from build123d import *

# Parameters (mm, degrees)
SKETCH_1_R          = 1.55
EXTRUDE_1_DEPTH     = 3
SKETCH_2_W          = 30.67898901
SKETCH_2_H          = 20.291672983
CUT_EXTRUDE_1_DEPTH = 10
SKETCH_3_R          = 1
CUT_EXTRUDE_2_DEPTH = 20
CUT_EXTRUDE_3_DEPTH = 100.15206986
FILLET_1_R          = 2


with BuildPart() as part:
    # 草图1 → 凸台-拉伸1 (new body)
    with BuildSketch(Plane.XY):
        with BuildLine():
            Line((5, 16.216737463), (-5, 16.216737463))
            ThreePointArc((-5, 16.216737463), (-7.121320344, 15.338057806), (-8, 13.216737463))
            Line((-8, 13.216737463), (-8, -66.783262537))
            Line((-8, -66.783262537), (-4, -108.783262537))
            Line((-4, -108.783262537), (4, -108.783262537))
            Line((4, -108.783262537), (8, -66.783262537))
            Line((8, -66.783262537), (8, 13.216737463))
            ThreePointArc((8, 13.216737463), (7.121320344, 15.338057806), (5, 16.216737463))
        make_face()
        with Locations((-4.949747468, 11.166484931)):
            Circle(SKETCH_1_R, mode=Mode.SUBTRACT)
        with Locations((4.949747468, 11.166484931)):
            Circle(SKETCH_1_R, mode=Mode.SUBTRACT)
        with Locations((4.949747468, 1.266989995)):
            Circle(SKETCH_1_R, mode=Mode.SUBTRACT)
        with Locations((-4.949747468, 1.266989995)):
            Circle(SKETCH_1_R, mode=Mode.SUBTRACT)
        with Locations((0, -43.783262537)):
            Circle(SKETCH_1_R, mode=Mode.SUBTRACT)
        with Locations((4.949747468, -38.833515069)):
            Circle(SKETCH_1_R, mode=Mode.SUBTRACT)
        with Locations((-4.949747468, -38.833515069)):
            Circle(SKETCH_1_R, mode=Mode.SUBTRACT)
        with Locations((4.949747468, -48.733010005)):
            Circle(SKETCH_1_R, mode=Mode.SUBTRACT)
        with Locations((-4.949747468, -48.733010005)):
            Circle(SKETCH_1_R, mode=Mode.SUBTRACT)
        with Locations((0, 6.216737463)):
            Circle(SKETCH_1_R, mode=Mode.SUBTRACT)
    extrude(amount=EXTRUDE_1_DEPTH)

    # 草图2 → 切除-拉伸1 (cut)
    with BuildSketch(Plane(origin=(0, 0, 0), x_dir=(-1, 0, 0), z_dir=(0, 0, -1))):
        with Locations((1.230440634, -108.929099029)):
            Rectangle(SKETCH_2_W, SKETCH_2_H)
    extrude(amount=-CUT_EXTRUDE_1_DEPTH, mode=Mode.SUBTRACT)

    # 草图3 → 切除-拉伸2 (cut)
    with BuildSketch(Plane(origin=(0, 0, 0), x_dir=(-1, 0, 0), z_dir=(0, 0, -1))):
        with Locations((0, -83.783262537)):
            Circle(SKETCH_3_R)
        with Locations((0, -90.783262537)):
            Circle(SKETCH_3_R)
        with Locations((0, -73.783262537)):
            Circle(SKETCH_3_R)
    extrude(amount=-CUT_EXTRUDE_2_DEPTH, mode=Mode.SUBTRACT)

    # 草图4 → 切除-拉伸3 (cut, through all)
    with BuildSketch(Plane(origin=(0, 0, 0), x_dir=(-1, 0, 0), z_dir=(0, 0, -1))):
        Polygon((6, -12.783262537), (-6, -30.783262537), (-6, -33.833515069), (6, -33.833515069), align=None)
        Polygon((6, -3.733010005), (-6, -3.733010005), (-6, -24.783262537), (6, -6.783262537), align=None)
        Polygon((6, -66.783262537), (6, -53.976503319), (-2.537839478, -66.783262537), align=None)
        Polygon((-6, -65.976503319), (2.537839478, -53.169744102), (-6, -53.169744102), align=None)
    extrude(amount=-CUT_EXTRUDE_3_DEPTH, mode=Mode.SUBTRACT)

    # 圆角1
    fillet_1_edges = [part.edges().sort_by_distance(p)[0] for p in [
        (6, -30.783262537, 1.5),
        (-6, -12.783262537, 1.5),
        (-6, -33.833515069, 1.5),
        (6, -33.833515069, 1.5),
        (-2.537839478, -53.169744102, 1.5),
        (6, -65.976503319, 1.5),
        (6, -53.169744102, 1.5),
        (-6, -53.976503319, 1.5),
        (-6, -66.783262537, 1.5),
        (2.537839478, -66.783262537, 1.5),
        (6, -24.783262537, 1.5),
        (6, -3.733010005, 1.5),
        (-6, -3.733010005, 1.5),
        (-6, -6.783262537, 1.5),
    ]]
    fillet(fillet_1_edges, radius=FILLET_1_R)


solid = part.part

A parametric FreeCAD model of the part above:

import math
import FreeCAD as App
import Part
import Sketcher
from FreeCAD import Vector


def edges_at(feature, points):
    """Names of the edges that pass closest to the given points."""
    edges = feature.Shape.Edges
    near = lambda p: min(range(len(edges)), key=lambda i: edges[i].distToShape(Part.Vertex(*p))[0])
    return sorted({f"Edge{near(p) + 1}" for p in points})

doc = App.newDocument("Part")
body = doc.addObject("PartDesign::Body", "Body")

sketch1 = body.newObject("Sketcher::SketchObject", "Sketch")
sketch1.AttachmentSupport = (doc.getObject("XY_Plane"), [""])
sketch1.MapMode = "FlatFace"
sketch1.addGeometry([
    Part.LineSegment(Vector(5, 16.2, 0), Vector(-5, 16.2, 0)),
    Part.ArcOfCircle(Part.Circle(Vector(-5, 13.2, 0), Vector(0, 0, 1), 3), math.radians(90), math.radians(180)),
    Part.LineSegment(Vector(-8, 13.2, 0), Vector(-8, -66.8, 0)),
    Part.LineSegment(Vector(-8, -66.8, 0), Vector(-4, -108.8, 0)),
    Part.LineSegment(Vector(-4, -108.8, 0), Vector(4, -108.8, 0)),
    Part.LineSegment(Vector(4, -108.8, 0), Vector(8, -66.8, 0)),
    Part.LineSegment(Vector(8, -66.8, 0), Vector(8, 13.2, 0)),
    Part.ArcOfCircle(Part.Circle(Vector(5, 13.2, 0), Vector(0, 0, 1), 3), math.radians(0), math.radians(90)),
    Part.Circle(Vector(-4.9, -48.7, 0), Vector(0, 0, 1), 1.6),
    Part.Circle(Vector(-4.9, -38.8, 0), Vector(0, 0, 1), 1.6),
    Part.Circle(Vector(0, -43.8, 0), Vector(0, 0, 1), 1.6),
    Part.Circle(Vector(4.9, -48.7, 0), Vector(0, 0, 1), 1.6),
    Part.Circle(Vector(4.9, -38.8, 0), Vector(0, 0, 1), 1.6),
    Part.Circle(Vector(-4.9, 1.3, 0), Vector(0, 0, 1), 1.6),
    Part.Circle(Vector(-4.9, 11.2, 0), Vector(0, 0, 1), 1.6),
    Part.Circle(Vector(0, 6.2, 0), Vector(0, 0, 1), 1.6),
    Part.Circle(Vector(4.9, 1.3, 0), Vector(0, 0, 1), 1.6),
    Part.Circle(Vector(4.9, 11.2, 0), Vector(0, 0, 1), 1.6),
], False)
sketch1.addConstraint([
    Sketcher.Constraint("Tangent", 0, 2, 1, 1),
    Sketcher.Constraint("Tangent", 1, 2, 2, 1),
    Sketcher.Constraint("Coincident", 2, 2, 3, 1),
    Sketcher.Constraint("Coincident", 3, 2, 4, 1),
    Sketcher.Constraint("Coincident", 4, 2, 5, 1),
    Sketcher.Constraint("Coincident", 5, 2, 6, 1),
    Sketcher.Constraint("Tangent", 6, 2, 7, 1),
    Sketcher.Constraint("Tangent", 7, 2, 0, 1),
    Sketcher.Constraint("Horizontal", 0),
    Sketcher.Constraint("Vertical", 2),
    Sketcher.Constraint("Horizontal", 4),
    Sketcher.Constraint("Vertical", 6),
    Sketcher.Constraint("Equal", 1, 7),
    Sketcher.Constraint("Equal", 8, 9),
    Sketcher.Constraint("Equal", 9, 10),
    Sketcher.Constraint("Equal", 10, 11),
    Sketcher.Constraint("Equal", 11, 12),
    Sketcher.Constraint("Equal", 12, 13),
    Sketcher.Constraint("Equal", 13, 14),
    Sketcher.Constraint("Equal", 14, 15),
    Sketcher.Constraint("Equal", 15, 16),
    Sketcher.Constraint("Equal", 16, 17),
    Sketcher.Constraint("Symmetric", 8, 3, 11, 3, -2),
    Sketcher.Constraint("Symmetric", 9, 3, 12, 3, -2),
    Sketcher.Constraint("Symmetric", 13, 3, 16, 3, -2),
    Sketcher.Constraint("Symmetric", 14, 3, 17, 3, -2),
    Sketcher.Constraint("Symmetric", 2, 2, 5, 2, -2),
    Sketcher.Constraint("PointOnObject", 10, 3, -2),
    Sketcher.Constraint("PointOnObject", 15, 3, -2),
    Sketcher.Constraint("Vertical", 8, 3, 9, 3),
    Sketcher.Constraint("Vertical", 9, 3, 13, 3),
    Sketcher.Constraint("Vertical", 13, 3, 14, 3),
    Sketcher.Constraint("Equal", 3, 5),
    Sketcher.Constraint("Radius", 1, 3.0),
    Sketcher.Constraint("Diameter", 8, 3.1),
    Sketcher.Constraint("DistanceX", 0, 2, 0, 1, 10.0),
    Sketcher.Constraint("DistanceX", 4, 1, 4, 2, 8.0),
    Sketcher.Constraint("DistanceY", 2, 2, 2, 1, 80.0),
    Sketcher.Constraint("DistanceY", 10, 3, 1, 3, 57.0),
    Sketcher.Constraint("DistanceY", 9, 3, 14, 3, 50.0),
    Sketcher.Constraint("DistanceY", 15, 3, 1, 3, 7.0),
    Sketcher.Constraint("DistanceY", 3, 2, 2, 2, 42.0),
    Sketcher.Constraint("DistanceY", 8, 3, -1, 1, 48.73301),
    Sketcher.Constraint("DistanceY", -1, 1, 13, 3, 1.26699),
    Sketcher.Constraint("DistanceY", -1, 1, 1, 3, 13.216737),
    Sketcher.Constraint("DistanceX", 8, 3, -1, 1, 4.949747),
    Sketcher.Constraint("DistanceY", 9, 3, -1, 1, 38.833515),
])
pad1 = body.newObject("PartDesign::Pad", "Pad")
pad1.Profile = sketch1
pad1.Length = 3

sketch2 = body.newObject("Sketcher::SketchObject", "Sketch001")
sketch2.AttachmentSupport = (doc.getObject("XY_Plane"), [""])
sketch2.MapMode = "FlatFace"
sketch2.addGeometry([
    Part.LineSegment(Vector(14, -99, 0), Vector(14, -119, 0)),
    Part.LineSegment(Vector(14, -119, 0), Vector(-17, -119, 0)),
    Part.LineSegment(Vector(-17, -119, 0), Vector(-17, -99, 0)),
    Part.LineSegment(Vector(-17, -99, 0), Vector(14, -99, 0)),
], False)
sketch2.addConstraint([
    Sketcher.Constraint("Coincident", 0, 2, 1, 1),
    Sketcher.Constraint("Coincident", 1, 2, 2, 1),
    Sketcher.Constraint("Coincident", 2, 2, 3, 1),
    Sketcher.Constraint("Coincident", 3, 2, 0, 1),
    Sketcher.Constraint("Vertical", 0),
    Sketcher.Constraint("Horizontal", 1),
    Sketcher.Constraint("Vertical", 2),
    Sketcher.Constraint("Horizontal", 3),
    Sketcher.Constraint("DistanceX", 1, 2, 1, 1, 30.678989),
    Sketcher.Constraint("DistanceY", 0, 2, 0, 1, 20.291673),
    Sketcher.Constraint("DistanceX", -1, 1, 0, 2, 14.109054),
    Sketcher.Constraint("DistanceY", 0, 2, -1, 1, 119.074936),
])
pocket1 = body.newObject("PartDesign::Pocket", "Pocket")
pocket1.Profile = sketch2
pocket1.Length = 10
pocket1.Reversed = True

sketch3 = body.newObject("Sketcher::SketchObject", "Sketch002")
sketch3.AttachmentSupport = (doc.getObject("XY_Plane"), [""])
sketch3.MapMode = "FlatFace"
sketch3.addGeometry([
    Part.Circle(Vector(0, -83.8, 0), Vector(0, 0, 1), 1),
    Part.Circle(Vector(0, -90.8, 0), Vector(0, 0, 1), 1),
    Part.Circle(Vector(0, -73.8, 0), Vector(0, 0, 1), 1),
], False)
sketch3.addConstraint([
    Sketcher.Constraint("Equal", 0, 1),
    Sketcher.Constraint("Equal", 1, 2),
    Sketcher.Constraint("PointOnObject", 0, 3, -2),
    Sketcher.Constraint("PointOnObject", 1, 3, -2),
    Sketcher.Constraint("PointOnObject", 2, 3, -2),
    Sketcher.Constraint("Diameter", 0, 2.0),
    Sketcher.Constraint("DistanceY", 1, 3, 0, 3, 7.0),
    Sketcher.Constraint("DistanceY", 0, 3, 2, 3, 10.0),
    Sketcher.Constraint("DistanceY", 0, 3, -1, 1, 83.783263),
])
pocket2 = body.newObject("PartDesign::Pocket", "Pocket001")
pocket2.Profile = sketch3
pocket2.Length = 20
pocket2.Reversed = True

sketch4 = body.newObject("Sketcher::SketchObject", "Sketch003")
sketch4.AttachmentSupport = (doc.getObject("XY_Plane"), [""])
sketch4.MapMode = "FlatFace"
sketch4.addGeometry([
    Part.LineSegment(Vector(-6, -12.8, 0), Vector(6, -30.8, 0)),
    Part.LineSegment(Vector(6, -30.8, 0), Vector(6, -33.8, 0)),
    Part.LineSegment(Vector(6, -33.8, 0), Vector(-6, -33.8, 0)),
    Part.LineSegment(Vector(-6, -33.8, 0), Vector(-6, -12.8, 0)),
    Part.LineSegment(Vector(-6, -3.7, 0), Vector(6, -3.7, 0)),
    Part.LineSegment(Vector(6, -3.7, 0), Vector(6, -24.8, 0)),
    Part.LineSegment(Vector(6, -24.8, 0), Vector(-6, -6.8, 0)),
    Part.LineSegment(Vector(-6, -6.8, 0), Vector(-6, -3.7, 0)),
    Part.LineSegment(Vector(-6, -66.8, 0), Vector(-6, -54, 0)),
    Part.LineSegment(Vector(-6, -54, 0), Vector(2.5, -66.8, 0)),
    Part.LineSegment(Vector(2.5, -66.8, 0), Vector(-6, -66.8, 0)),
    Part.LineSegment(Vector(6, -66, 0), Vector(-2.5, -53.2, 0)),
    Part.LineSegment(Vector(-2.5, -53.2, 0), Vector(6, -53.2, 0)),
    Part.LineSegment(Vector(6, -53.2, 0), Vector(6, -66, 0)),
], False)
sketch4.addConstraint([
    Sketcher.Constraint("Coincident", 0, 2, 1, 1),
    Sketcher.Constraint("Coincident", 1, 2, 2, 1),
    Sketcher.Constraint("Coincident", 2, 2, 3, 1),
    Sketcher.Constraint("Coincident", 3, 2, 0, 1),
    Sketcher.Constraint("Coincident", 4, 2, 5, 1),
    Sketcher.Constraint("Coincident", 5, 2, 6, 1),
    Sketcher.Constraint("Coincident", 6, 2, 7, 1),
    Sketcher.Constraint("Coincident", 7, 2, 4, 1),
    Sketcher.Constraint("Coincident", 8, 2, 9, 1),
    Sketcher.Constraint("Coincident", 9, 2, 10, 1),
    Sketcher.Constraint("Coincident", 10, 2, 8, 1),
    Sketcher.Constraint("Coincident", 11, 2, 12, 1),
    Sketcher.Constraint("Coincident", 12, 2, 13, 1),
    Sketcher.Constraint("Coincident", 13, 2, 11, 1),
    Sketcher.Constraint("Vertical", 1),
    Sketcher.Constraint("Horizontal", 2),
    Sketcher.Constraint("Vertical", 3),
    Sketcher.Constraint("Horizontal", 4),
    Sketcher.Constraint("Vertical", 5),
    Sketcher.Constraint("Vertical", 7),
    Sketcher.Constraint("Vertical", 8),
    Sketcher.Constraint("Horizontal", 10),
    Sketcher.Constraint("Horizontal", 12),
    Sketcher.Constraint("Vertical", 13),
    Sketcher.Constraint("Parallel", 0, 6),
    Sketcher.Constraint("Parallel", 6, 9),
    Sketcher.Constraint("Parallel", 9, 11),
    Sketcher.Constraint("Vertical", 1, 2, 4, 2),
    Sketcher.Constraint("Vertical", 3, 2, 6, 2),
    Sketcher.Constraint("Vertical", 7, 2, 8, 2),
    Sketcher.Constraint("Vertical", 5, 2, 12, 2),
    Sketcher.Constraint("Equal", 10, 12),
    Sketcher.Constraint("Equal", 3, 5),
    Sketcher.Constraint("DistanceX", 2, 2, 2, 1, 12.0),
    Sketcher.Constraint("DistanceX", -1, 1, 0, 2, 6.0),
    Sketcher.Constraint("DistanceY", 0, 2, 3, 2, 18.0),
    Sketcher.Constraint("DistanceY", 0, 2, 5, 2, 6.0),
    Sketcher.Constraint("DistanceY", 9, 2, 0, 2, 36.0),
    Sketcher.Constraint("DistanceY", 13, 2, 8, 2, 12.0),
    Sketcher.Constraint("DistanceX", 10, 2, 10, 1, 8.537839),
    Sketcher.Constraint("DistanceY", 1, 2, 1, 1, 3.050253),
    Sketcher.Constraint("DistanceY", 4, 2, -1, 1, 3.73301),
])
pocket3 = body.newObject("PartDesign::Pocket", "Pocket002")
pocket3.Profile = sketch4
pocket3.Type = "ThroughAll"
pocket3.Reversed = True
doc.recompute()

fillet = body.newObject("PartDesign::Fillet", "Fillet")
fillet.Base = (pocket3, edges_at(pocket3, [
    (6, -30.783, 1.5),
    (-6, -12.783, 1.5),
    (-6, -33.834, 1.5),
    (6, -33.834, 1.5),
    (-2.538, -53.17, 1.5),
    (6, -65.977, 1.5),
    (6, -53.17, 1.5),
    (-6, -53.977, 1.5),
    (-6, -66.783, 1.5),
    (2.538, -66.783, 1.5),
    (6, -24.783, 1.5),
    (6, -3.733, 1.5),
    (-6, -3.733, 1.5),
    (-6, -6.783, 1.5),
]))
fillet.Radius = 2

doc.recompute()
